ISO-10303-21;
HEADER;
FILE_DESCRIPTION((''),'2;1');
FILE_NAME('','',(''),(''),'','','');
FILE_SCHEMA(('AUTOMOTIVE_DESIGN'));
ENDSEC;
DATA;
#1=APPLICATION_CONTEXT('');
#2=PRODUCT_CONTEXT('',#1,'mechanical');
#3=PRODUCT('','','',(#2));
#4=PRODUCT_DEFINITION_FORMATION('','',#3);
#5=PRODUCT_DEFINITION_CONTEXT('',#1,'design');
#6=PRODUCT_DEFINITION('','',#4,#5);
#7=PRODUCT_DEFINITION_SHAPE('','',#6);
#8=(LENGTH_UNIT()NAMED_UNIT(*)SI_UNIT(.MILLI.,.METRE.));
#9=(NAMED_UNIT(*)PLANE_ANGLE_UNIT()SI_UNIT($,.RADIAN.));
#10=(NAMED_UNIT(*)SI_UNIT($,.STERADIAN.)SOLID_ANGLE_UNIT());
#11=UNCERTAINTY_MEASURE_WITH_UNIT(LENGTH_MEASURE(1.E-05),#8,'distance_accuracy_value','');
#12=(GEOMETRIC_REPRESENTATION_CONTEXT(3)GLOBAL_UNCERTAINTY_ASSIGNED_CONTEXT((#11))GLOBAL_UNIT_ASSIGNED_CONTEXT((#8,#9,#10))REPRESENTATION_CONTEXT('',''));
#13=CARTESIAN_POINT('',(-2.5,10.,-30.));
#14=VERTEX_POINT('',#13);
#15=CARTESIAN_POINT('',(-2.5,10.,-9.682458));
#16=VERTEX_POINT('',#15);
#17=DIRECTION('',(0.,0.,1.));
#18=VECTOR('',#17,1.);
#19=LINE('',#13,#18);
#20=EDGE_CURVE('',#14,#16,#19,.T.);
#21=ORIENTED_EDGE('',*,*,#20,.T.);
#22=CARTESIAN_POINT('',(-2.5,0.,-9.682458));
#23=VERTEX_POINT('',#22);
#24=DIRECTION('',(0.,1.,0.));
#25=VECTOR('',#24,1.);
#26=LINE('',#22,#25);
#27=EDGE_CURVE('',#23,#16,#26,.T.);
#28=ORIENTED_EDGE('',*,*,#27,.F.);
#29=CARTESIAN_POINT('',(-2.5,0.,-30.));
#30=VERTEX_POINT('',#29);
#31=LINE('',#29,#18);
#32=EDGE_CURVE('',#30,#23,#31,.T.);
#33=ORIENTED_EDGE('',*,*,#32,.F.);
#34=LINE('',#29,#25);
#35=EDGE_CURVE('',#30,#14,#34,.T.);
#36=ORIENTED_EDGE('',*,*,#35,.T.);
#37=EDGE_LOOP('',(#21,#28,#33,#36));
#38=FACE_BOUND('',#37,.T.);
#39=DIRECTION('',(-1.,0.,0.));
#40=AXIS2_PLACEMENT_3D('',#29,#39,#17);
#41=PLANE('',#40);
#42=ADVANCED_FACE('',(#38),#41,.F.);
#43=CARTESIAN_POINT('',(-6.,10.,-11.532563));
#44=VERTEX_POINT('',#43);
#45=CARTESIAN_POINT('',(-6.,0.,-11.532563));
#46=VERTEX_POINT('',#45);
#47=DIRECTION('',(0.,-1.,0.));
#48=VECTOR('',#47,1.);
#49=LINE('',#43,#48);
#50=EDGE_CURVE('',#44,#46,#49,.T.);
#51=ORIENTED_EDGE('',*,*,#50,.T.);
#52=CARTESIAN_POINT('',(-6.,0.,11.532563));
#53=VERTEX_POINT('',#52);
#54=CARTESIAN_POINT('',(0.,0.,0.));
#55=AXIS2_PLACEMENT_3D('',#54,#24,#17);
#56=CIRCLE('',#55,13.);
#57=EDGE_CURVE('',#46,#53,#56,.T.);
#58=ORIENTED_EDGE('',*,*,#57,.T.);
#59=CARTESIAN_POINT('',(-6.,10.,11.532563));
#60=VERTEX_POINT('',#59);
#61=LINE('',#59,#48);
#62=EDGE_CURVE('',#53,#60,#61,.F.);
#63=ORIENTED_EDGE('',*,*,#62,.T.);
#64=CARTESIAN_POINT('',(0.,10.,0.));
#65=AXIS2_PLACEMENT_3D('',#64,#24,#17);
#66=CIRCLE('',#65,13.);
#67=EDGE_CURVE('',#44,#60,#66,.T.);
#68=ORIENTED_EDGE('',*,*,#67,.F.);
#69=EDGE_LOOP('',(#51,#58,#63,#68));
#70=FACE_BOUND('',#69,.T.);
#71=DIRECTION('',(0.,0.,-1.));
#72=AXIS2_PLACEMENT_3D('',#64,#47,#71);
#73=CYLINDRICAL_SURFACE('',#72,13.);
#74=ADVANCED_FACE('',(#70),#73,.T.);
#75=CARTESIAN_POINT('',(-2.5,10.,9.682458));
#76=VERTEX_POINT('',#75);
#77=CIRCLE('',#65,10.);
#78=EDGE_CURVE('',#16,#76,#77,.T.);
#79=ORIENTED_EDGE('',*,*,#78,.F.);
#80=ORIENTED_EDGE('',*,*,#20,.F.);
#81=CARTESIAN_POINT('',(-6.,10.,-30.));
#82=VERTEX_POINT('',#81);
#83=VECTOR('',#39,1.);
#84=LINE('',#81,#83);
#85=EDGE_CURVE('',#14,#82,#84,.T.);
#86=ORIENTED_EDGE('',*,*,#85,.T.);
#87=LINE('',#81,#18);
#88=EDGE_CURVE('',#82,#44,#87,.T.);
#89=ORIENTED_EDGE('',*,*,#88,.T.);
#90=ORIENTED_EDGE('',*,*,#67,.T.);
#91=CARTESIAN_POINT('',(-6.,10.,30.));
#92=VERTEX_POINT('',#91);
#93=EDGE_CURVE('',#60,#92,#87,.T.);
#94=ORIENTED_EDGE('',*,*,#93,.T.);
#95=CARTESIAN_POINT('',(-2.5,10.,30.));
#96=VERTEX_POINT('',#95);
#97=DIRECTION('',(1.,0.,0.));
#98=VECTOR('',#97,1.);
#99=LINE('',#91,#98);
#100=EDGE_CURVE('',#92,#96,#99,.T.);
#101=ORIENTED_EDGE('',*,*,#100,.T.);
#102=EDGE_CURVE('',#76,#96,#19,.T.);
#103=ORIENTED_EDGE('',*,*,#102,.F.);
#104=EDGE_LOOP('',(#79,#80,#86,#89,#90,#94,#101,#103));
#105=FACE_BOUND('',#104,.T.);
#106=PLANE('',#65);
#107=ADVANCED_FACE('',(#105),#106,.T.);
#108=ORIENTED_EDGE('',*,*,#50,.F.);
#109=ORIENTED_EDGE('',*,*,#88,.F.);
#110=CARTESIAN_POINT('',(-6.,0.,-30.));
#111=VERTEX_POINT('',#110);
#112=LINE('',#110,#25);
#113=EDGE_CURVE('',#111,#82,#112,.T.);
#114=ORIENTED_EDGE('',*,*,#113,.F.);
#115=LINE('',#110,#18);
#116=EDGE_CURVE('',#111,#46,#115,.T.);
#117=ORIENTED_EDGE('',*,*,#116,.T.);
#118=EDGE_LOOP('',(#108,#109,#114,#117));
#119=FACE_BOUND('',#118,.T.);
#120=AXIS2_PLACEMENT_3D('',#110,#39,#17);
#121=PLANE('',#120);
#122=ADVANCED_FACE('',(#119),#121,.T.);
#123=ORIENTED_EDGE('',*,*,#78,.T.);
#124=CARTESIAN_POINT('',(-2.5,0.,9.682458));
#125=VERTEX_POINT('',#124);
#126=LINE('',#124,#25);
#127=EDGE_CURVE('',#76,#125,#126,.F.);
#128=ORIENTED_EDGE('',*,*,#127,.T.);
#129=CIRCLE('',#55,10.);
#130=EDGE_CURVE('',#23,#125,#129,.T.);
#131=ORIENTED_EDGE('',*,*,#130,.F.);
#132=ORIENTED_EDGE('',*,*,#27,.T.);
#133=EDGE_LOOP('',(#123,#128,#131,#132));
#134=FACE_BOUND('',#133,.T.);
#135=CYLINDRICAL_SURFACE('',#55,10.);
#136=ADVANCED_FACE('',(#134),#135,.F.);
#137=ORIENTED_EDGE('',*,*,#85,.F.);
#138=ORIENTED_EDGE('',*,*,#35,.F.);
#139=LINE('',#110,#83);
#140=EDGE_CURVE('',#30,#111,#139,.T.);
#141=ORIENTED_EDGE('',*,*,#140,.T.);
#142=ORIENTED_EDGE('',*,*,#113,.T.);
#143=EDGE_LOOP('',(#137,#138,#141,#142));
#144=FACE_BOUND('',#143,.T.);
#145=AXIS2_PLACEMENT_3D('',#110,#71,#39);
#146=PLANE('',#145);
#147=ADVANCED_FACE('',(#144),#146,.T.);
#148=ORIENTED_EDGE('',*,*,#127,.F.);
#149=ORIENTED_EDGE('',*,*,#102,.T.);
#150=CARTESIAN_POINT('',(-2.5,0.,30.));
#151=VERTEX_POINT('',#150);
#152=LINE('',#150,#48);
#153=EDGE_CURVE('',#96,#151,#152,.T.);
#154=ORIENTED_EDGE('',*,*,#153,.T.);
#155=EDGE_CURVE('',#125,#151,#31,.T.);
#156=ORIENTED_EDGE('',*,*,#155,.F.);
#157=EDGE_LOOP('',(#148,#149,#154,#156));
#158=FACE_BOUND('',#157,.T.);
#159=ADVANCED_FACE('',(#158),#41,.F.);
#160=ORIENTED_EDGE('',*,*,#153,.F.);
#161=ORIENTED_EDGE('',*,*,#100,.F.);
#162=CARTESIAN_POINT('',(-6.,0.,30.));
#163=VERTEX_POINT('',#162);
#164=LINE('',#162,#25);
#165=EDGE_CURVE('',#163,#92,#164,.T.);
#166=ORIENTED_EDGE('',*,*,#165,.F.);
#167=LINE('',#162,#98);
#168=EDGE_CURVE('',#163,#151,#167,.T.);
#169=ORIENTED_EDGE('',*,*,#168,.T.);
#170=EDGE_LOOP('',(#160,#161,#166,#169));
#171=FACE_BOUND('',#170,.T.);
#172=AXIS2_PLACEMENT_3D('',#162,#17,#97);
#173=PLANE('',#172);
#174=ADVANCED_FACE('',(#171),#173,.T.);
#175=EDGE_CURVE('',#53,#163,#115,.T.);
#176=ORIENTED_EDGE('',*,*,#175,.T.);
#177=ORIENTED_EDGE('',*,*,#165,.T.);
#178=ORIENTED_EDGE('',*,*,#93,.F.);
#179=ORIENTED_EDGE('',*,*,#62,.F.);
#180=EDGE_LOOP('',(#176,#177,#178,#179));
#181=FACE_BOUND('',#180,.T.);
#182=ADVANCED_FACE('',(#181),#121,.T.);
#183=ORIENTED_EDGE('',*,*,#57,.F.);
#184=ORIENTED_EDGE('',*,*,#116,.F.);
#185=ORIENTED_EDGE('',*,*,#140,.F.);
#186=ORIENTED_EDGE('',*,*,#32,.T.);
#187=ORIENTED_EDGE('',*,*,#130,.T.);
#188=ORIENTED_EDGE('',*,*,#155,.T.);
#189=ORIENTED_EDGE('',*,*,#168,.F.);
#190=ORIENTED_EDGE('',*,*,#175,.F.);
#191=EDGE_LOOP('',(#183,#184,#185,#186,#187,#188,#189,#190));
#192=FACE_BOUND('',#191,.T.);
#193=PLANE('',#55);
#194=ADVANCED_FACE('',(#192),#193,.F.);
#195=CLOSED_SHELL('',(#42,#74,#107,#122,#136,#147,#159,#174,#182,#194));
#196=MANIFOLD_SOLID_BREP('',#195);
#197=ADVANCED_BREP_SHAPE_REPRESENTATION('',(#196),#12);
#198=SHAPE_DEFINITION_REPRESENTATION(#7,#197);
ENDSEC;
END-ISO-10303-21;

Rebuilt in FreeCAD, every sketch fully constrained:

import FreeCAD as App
import Part
import Sketcher

V = App.Vector

doc = App.newDocument("Part")
body = doc.addObject("PartDesign::Body", "Body")

# Sketch on XZ plane
sketch1 = doc.addObject("Sketcher::SketchObject", "Sketch")
body.addObject(sketch1)
sketch1.AttachmentSupport = (doc.XZ_Plane, [""])
sketch1.MapMode = "FlatFace"
sketch1.addGeometry(Part.Circle(V(0, 0, 0), V(0, 0, 1), 13), False)
sketch1.addConstraint([
    Sketcher.Constraint("Coincident", 0, 3, -1, 1),
    Sketcher.Constraint("Diameter", 0, 26.0),
])
pad1 = doc.addObject("PartDesign::Pad", "Pad")
body.addObject(pad1)
pad1.Profile = sketch1
pad1.Length = 10
pad1.Reversed = True

# Sketch on XZ plane
sketch2 = doc.addObject("Sketcher::SketchObject", "Sketch001")
body.addObject(sketch2)
sketch2.AttachmentSupport = (doc.XZ_Plane, [""])
sketch2.MapMode = "FlatFace"
sketch2.AttachmentOffset = App.Placement(V(0, 0, -10), App.Rotation())
sketch2.addGeometry([
    Part.LineSegment(V(-6, -30, 0), V(-6, 30, 0)),
    Part.LineSegment(V(-6, 30, 0), V(6, 30, 0)),
    Part.LineSegment(V(6, 30, 0), V(6, -30, 0)),
    Part.LineSegment(V(6, -30, 0), V(-6, -30, 0)),
], False)
sketch2.addConstraint([
    Sketcher.Constraint("Coincident", 0, 2, 1, 1),
    Sketcher.Constraint("Coincident", 1, 2, 2, 1),
    Sketcher.Constraint("Coincident", 2, 2, 3, 1),
    Sketcher.Constraint("Coincident", 3, 2, 0, 1),
    Sketcher.Constraint("Vertical", 0),
    Sketcher.Constraint("Horizontal", 1),
    Sketcher.Constraint("Vertical", 2),
    Sketcher.Constraint("Horizontal", 3),
    Sketcher.Constraint("Symmetric", 0, 2, 2, 2, -1, 1),
    Sketcher.Constraint("DistanceX", 1, 1, 1, 2, 12.0),
    Sketcher.Constraint("DistanceY", 0, 1, 0, 2, 60.0),
])
pad2 = doc.addObject("PartDesign::Pad", "Pad001")
body.addObject(pad2)
pad2.Profile = sketch2
pad2.Length = 10

# Sketch on XZ plane
sketch3 = doc.addObject("Sketcher::SketchObject", "Sketch002")
body.addObject(sketch3)
sketch3.AttachmentSupport = (doc.XZ_Plane, [""])
sketch3.MapMode = "FlatFace"
sketch3.AttachmentOffset = App.Placement(V(0, 0, -10), App.Rotation())
sketch3.addGeometry(Part.Circle(V(0, 0, 0), V(0, 0, 1), 10), False)
sketch3.addConstraint([
    Sketcher.Constraint("Coincident", 0, 3, -1, 1),
    Sketcher.Constraint("Diameter", 0, 20.0),
])
pocket1 = doc.addObject("PartDesign::Pocket", "Pocket")
body.addObject(pocket1)
pocket1.Profile = sketch3
pocket1.Length = 10
pocket1.Reversed = True

# Sketch on XZ plane
sketch4 = doc.addObject("Sketcher::SketchObject", "Sketch003")
body.addObject(sketch4)
sketch4.AttachmentSupport = (doc.XZ_Plane, [""])
sketch4.MapMode = "FlatFace"
sketch4.AttachmentOffset = App.Placement(V(0, 0, -10), App.Rotation())
sketch4.addGeometry([
    Part.LineSegment(V(-2.5, -30, 0), V(-2.5, 31.579586, 0)),
    Part.LineSegment(V(-2.5, 31.579586, 0), V(30.188093, 31.579586, 0)),
    Part.LineSegment(V(30.188093, 31.579586, 0), V(30.188093, -30, 0)),
    Part.LineSegment(V(30.188093, -30, 0), V(-2.5, -30, 0)),
], False)
sketch4.addConstraint([
    Sketcher.Constraint("Coincident", 0, 2, 1, 1),
    Sketcher.Constraint("Coincident", 1, 2, 2, 1),
    Sketcher.Constraint("Coincident", 2, 2, 3, 1),
    Sketcher.Constraint("Coincident", 3, 2, 0, 1),
    Sketcher.Constraint("Vertical", 0),
    Sketcher.Constraint("Horizontal", 1),
    Sketcher.Constraint("Vertical", 2),
    Sketcher.Constraint("Horizontal", 3),
    Sketcher.Constraint("DistanceY", 2, 2, -1, 1, 30.0),
    Sketcher.Constraint("DistanceX", 0, 2, -1, 1, 2.5),
    Sketcher.Constraint("DistanceX", 1, 1, 1, 2, 32.688093),
    Sketcher.Constraint("DistanceY", 0, 1, 0, 2, 61.579586),
])
pocket2 = doc.addObject("PartDesign::Pocket", "Pocket001")
body.addObject(pocket2)
pocket2.Profile = sketch4
pocket2.Length = 10
pocket2.Reversed = True

doc.recompute()
